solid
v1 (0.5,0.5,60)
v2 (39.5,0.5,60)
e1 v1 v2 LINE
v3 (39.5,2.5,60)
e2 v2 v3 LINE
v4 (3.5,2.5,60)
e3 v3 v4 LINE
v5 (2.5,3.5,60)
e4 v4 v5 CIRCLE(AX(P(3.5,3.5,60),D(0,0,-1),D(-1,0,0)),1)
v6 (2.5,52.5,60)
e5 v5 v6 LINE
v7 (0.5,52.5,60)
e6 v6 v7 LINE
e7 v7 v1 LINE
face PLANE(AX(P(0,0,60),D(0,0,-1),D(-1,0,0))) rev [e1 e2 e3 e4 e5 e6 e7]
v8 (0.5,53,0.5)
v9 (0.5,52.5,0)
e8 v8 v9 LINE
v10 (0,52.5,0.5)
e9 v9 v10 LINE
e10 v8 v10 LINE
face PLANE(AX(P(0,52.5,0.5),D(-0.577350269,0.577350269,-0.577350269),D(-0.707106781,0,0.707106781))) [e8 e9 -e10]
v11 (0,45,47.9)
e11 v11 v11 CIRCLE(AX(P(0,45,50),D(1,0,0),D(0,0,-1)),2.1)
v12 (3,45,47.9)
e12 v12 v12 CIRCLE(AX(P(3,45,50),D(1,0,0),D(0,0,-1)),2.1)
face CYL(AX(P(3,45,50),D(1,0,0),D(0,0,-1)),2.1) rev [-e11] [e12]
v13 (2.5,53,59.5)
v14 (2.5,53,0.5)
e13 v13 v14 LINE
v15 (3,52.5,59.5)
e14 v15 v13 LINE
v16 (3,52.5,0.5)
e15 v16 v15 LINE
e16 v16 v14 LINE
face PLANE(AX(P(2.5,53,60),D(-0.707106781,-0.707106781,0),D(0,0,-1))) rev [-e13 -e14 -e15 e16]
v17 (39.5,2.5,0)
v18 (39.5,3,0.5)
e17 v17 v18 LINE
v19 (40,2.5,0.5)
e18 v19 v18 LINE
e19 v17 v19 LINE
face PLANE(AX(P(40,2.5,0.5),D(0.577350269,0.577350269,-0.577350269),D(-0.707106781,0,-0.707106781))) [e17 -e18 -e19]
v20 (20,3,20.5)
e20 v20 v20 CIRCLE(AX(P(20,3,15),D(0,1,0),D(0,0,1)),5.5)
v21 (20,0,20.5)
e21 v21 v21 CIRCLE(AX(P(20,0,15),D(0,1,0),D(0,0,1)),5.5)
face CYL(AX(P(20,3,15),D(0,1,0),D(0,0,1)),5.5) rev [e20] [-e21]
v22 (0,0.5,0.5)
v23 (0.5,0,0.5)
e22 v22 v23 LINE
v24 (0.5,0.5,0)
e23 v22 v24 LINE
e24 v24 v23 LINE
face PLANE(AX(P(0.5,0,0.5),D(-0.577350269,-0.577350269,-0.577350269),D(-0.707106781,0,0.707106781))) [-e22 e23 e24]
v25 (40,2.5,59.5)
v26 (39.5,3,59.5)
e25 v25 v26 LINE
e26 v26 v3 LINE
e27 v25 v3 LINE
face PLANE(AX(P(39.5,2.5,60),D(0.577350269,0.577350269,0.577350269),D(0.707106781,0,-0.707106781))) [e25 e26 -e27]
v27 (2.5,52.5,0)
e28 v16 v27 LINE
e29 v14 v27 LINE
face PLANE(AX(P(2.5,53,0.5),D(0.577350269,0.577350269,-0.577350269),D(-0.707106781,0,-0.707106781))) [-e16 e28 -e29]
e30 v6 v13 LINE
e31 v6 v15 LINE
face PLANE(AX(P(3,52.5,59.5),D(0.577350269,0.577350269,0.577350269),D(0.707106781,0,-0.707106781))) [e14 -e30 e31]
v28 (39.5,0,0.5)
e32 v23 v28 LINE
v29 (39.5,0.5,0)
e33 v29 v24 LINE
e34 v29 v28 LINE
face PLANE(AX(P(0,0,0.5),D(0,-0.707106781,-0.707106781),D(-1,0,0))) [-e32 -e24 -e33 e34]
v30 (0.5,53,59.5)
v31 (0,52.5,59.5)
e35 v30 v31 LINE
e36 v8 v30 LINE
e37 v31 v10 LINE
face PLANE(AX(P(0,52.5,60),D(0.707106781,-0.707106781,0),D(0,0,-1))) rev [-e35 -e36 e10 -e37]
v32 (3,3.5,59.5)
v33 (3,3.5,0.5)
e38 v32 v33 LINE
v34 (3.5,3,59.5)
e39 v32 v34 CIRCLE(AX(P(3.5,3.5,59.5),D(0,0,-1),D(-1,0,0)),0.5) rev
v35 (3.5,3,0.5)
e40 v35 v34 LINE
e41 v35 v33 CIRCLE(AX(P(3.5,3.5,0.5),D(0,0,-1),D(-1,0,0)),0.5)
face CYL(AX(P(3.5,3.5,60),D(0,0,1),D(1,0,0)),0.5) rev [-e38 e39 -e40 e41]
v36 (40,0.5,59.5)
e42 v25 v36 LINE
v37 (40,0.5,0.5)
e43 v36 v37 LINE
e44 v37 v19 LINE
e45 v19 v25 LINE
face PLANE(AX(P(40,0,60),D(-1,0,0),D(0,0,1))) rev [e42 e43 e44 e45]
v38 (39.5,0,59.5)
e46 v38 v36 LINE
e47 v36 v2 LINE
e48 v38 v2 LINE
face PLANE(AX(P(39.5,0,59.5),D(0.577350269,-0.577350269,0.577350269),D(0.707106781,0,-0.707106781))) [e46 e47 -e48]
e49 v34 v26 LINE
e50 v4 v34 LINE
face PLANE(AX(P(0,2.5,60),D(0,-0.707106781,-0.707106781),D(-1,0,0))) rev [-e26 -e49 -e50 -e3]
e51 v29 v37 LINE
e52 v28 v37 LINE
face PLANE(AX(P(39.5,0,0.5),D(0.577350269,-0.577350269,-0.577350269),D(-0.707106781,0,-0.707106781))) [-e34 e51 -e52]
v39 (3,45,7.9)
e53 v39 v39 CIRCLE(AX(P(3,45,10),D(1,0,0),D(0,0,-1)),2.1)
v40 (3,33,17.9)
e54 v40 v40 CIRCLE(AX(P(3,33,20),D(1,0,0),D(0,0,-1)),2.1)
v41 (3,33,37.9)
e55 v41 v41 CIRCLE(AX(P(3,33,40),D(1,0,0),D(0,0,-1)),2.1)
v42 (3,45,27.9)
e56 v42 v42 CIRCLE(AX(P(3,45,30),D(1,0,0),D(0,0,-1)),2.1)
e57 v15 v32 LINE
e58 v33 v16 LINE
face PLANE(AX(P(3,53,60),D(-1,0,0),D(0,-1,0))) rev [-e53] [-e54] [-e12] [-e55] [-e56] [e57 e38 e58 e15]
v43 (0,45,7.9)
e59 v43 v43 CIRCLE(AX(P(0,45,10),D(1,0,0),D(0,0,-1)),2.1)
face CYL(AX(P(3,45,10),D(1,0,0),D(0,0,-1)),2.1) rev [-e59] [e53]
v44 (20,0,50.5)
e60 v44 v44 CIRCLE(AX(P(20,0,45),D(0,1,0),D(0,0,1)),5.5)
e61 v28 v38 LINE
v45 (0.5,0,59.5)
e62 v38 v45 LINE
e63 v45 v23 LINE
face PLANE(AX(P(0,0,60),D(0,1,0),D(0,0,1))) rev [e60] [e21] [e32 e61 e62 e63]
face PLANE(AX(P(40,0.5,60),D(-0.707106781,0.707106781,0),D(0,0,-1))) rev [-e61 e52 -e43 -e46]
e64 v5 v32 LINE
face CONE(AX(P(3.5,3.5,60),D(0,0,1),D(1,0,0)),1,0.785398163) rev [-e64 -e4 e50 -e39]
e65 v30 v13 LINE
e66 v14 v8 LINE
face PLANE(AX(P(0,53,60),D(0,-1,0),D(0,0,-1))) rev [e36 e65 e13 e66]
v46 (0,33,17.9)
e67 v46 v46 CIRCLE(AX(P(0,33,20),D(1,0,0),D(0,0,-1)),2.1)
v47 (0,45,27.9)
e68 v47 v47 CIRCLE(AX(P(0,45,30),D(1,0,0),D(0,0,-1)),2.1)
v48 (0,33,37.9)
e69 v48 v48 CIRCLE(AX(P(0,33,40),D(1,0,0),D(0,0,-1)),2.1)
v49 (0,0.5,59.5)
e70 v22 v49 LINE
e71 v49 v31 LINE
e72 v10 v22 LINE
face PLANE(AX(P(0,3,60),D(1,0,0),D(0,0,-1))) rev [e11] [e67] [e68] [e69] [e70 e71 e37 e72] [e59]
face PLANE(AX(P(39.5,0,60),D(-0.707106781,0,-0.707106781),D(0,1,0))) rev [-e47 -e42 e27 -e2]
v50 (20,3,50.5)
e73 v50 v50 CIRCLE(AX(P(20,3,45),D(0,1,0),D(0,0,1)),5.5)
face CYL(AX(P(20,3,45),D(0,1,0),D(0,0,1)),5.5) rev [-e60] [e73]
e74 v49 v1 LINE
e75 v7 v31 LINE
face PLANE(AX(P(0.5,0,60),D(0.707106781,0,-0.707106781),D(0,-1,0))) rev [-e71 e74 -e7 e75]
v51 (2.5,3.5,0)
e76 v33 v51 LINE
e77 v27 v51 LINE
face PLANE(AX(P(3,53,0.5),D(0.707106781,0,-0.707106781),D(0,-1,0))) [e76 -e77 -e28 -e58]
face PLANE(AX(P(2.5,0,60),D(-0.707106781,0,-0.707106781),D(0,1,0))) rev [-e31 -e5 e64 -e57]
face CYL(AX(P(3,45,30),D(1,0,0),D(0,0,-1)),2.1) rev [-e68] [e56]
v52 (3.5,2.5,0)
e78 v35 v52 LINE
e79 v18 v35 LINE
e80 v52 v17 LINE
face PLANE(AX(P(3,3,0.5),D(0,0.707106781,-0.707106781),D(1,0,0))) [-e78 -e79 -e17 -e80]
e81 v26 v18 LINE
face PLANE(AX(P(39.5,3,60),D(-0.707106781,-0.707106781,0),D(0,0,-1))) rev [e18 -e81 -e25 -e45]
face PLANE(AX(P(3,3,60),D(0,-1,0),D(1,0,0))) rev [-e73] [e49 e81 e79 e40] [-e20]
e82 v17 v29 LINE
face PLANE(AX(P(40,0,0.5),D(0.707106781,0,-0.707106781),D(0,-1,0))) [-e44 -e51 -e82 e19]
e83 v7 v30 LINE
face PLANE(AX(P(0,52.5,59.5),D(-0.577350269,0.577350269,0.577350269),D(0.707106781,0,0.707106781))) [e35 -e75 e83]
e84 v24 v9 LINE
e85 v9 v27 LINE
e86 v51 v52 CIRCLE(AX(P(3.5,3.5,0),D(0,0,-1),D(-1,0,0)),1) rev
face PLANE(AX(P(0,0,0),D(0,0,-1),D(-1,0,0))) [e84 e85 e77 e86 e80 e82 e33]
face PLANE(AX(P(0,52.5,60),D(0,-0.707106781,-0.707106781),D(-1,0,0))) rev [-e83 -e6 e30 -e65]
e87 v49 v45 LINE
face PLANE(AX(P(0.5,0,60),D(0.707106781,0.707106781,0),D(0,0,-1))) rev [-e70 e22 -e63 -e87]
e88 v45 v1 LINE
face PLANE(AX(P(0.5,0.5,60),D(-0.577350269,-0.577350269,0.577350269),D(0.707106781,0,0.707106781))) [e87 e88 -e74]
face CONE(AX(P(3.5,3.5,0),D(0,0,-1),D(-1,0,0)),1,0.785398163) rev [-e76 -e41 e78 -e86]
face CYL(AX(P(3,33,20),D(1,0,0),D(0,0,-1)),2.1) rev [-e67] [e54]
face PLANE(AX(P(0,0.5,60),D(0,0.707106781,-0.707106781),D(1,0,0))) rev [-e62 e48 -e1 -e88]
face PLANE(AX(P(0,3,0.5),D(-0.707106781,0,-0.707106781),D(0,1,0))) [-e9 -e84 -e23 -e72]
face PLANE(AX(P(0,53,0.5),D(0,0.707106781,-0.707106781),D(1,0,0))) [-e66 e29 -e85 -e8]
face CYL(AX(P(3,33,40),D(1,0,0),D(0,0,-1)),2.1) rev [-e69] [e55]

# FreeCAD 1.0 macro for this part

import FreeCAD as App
import Part
import Sketcher
from FreeCAD import Vector
Q = App.Units.Quantity


def edges_at(feature, points):
    """Names of the edges that pass closest to the given points."""
    edges = feature.Shape.Edges
    near = lambda p: min(range(len(edges)), key=lambda i: edges[i].distToShape(Part.Vertex(*p))[0])
    return sorted({f"Edge{near(p) + 1}" for p in points})

doc = App.newDocument("Part")
body = doc.addObject("PartDesign::Body", "Body")

# Sketch on XY plane
sketch1 = body.newObject("Sketcher::SketchObject", "Sketch")
sketch1.AttachmentSupport = (doc.getObject("XY_Plane"), [""])
sketch1.MapMode = "FlatFace"
sketch1.addGeometry([
    Part.LineSegment(Vector(0, 53, 0), Vector(0, 0, 0)),  # 0
    Part.LineSegment(Vector(0, 0, 0), Vector(40, 0, 0)),  # 1
    Part.LineSegment(Vector(40, 0, 0), Vector(40, 3, 0)),  # 2
    Part.LineSegment(Vector(40, 3, 0), Vector(3, 3, 0)),  # 3
    Part.LineSegment(Vector(3, 3, 0), Vector(3, 53, 0)),  # 4
    Part.LineSegment(Vector(3, 53, 0), Vector(0, 53, 0)),  # 5
], False)
sketch1.addConstraint([
    Sketcher.Constraint("Coincident", 0, 2, 1, 1),
    Sketcher.Constraint("Coincident", 1, 2, 2, 1),
    Sketcher.Constraint("Coincident", 2, 2, 3, 1),
    Sketcher.Constraint("Coincident", 3, 2, 4, 1),
    Sketcher.Constraint("Coincident", 4, 2, 5, 1),
    Sketcher.Constraint("Coincident", 5, 2, 0, 1),
    Sketcher.Constraint("Vertical", 0),
    Sketcher.Constraint("Horizontal", 1),
    Sketcher.Constraint("Vertical", 2),
    Sketcher.Constraint("Horizontal", 3),
    Sketcher.Constraint("Vertical", 4),
    Sketcher.Constraint("Horizontal", 5),
    Sketcher.Constraint("Coincident", 0, 2, -1, 1),
    Sketcher.Constraint("Equal", 5, 2),
    Sketcher.Constraint("DistanceX", 1, 1, 1, 2, Q("40 mm")),
    Sketcher.Constraint("DistanceX", 3, 2, 3, 1, Q("37 mm")),
    Sketcher.Constraint("DistanceY", 0, 2, 0, 1, Q("53 mm")),
])
pad1 = body.newObject("PartDesign::Pad", "Pad")
pad1.Profile = sketch1
pad1.Length = 60

# Sketch on XZ plane
sketch2 = body.newObject("Sketcher::SketchObject", "Sketch001")
sketch2.AttachmentSupport = (doc.getObject("XZ_Plane"), [""])
sketch2.MapMode = "FlatFace"
sketch2.AttachmentOffset = App.Placement(Vector(0, 0, -3), App.Rotation())
sketch2.addGeometry([
    Part.Circle(Vector(20, 45, 0), Vector(0, 0, 1), 6),
    Part.Circle(Vector(20, 15, 0), Vector(0, 0, 1), 6),
], False)
sketch2.addConstraint([
    Sketcher.Constraint("Equal", 0, 1),
    Sketcher.Constraint("Vertical", 0, 3, 1, 3),
    Sketcher.Constraint("Diameter", 0, Q("11 mm")),
    Sketcher.Constraint("DistanceX", -1, 1, 0, 3, Q("20 mm")),
    Sketcher.Constraint("DistanceY", -1, 1, 0, 3, Q("45 mm")),
    Sketcher.Constraint("DistanceY", -1, 1, 1, 3, Q("15 mm")),
])
doc.recompute()
hole = body.newObject("PartDesign::Hole", "Hole")
hole.Profile = sketch2
hole.ThreadType = "None"
hole.Diameter = 11
hole.DepthType = "Dimension"
hole.Depth = 22.25
hole.DrillPoint = "Angled"
hole.DrillPointAngle = 118
hole.Reversed = True

# Sketch on YZ plane
sketch3 = body.newObject("Sketcher::SketchObject", "Sketch002")
sketch3.AttachmentSupport = (doc.getObject("YZ_Plane"), [""])
sketch3.MapMode = "FlatFace"
sketch3.AttachmentOffset = App.Placement(Vector(0, 0, 3), App.Rotation())
sketch3.addGeometry([
    Part.Circle(Vector(45, 50, 0), Vector(0, 0, 1), 2.1),  # 0
    Part.Circle(Vector(33, 40, 0), Vector(0, 0, 1), 2.1),  # 1
    Part.Circle(Vector(45, 30, 0), Vector(0, 0, 1), 2.1),  # 2
    Part.Circle(Vector(33, 20, 0), Vector(0, 0, 1), 2.1),  # 3
    Part.Circle(Vector(45, 10, 0), Vector(0, 0, 1), 2.1),  # 4
], False)
sketch3.addConstraint([
    Sketcher.Constraint("Equal", 0, 1),
    Sketcher.Constraint("Equal", 1, 2),
    Sketcher.Constraint("Equal", 2, 3),
    Sketcher.Constraint("Equal", 3, 4),
    Sketcher.Constraint("Vertical", 0, 3, 2, 3),
    Sketcher.Constraint("Vertical", 1, 3, 3, 3),
    Sketcher.Constraint("Vertical", 2, 3, 4, 3),
    Sketcher.Constraint("Diameter", 0, Q("4.2 mm")),
    Sketcher.Constraint("DistanceX", -1, 1, 0, 3, Q("45 mm")),
    Sketcher.Constraint("DistanceY", -1, 1, 0, 3, Q("50 mm")),
    Sketcher.Constraint("DistanceX", -1, 1, 1, 3, Q("33 mm")),
    Sketcher.Constraint("DistanceY", -1, 1, 1, 3, Q("40 mm")),
    Sketcher.Constraint("DistanceY", -1, 1, 2, 3, Q("30 mm")),
    Sketcher.Constraint("DistanceY", -1, 1, 3, 3, Q("20 mm")),
    Sketcher.Constraint("DistanceY", -1, 1, 4, 3, Q("10 mm")),
])
doc.recompute()
hole2 = body.newObject("PartDesign::Hole", "Hole001")
hole2.Profile = sketch3
hole2.ThreadType = "None"
hole2.Diameter = 4.2
hole2.DepthType = "Dimension"
hole2.Depth = 14
hole2.DrillPoint = "Angled"
hole2.DrillPointAngle = 118
doc.recompute()

fillet = body.newObject("PartDesign::Fillet", "Fillet")
fillet.Base = (hole2, edges_at(hole2, [(3, 3, 30)]))
fillet.Radius = 0.5
doc.recompute()

chamfer = body.newObject("PartDesign::Chamfer", "Chamfer")
chamfer.Base = (fillet, edges_at(fillet, [
    (0, 53, 30),
    (3, 53, 30),
    (40, 1.5, 60),
    (40, 3, 30),
    (40, 0, 30),
    (0, 0, 30),
    (21.75, 3, 60),
    (1.5, 53, 60),
    (0, 26.5, 60),
    (3, 28.25, 0),
    (3, 28.25, 60),
    (3.146, 3.146, 0),
    (3.146, 3.146, 60),
    (0, 26.5, 0),
    (1.5, 53, 0),
    (21.75, 3, 0),
    (20, 0, 60),
    (40, 1.5, 0),
    (20, 0, 0),
]))
chamfer.Size = 0.5

doc.recompute()
